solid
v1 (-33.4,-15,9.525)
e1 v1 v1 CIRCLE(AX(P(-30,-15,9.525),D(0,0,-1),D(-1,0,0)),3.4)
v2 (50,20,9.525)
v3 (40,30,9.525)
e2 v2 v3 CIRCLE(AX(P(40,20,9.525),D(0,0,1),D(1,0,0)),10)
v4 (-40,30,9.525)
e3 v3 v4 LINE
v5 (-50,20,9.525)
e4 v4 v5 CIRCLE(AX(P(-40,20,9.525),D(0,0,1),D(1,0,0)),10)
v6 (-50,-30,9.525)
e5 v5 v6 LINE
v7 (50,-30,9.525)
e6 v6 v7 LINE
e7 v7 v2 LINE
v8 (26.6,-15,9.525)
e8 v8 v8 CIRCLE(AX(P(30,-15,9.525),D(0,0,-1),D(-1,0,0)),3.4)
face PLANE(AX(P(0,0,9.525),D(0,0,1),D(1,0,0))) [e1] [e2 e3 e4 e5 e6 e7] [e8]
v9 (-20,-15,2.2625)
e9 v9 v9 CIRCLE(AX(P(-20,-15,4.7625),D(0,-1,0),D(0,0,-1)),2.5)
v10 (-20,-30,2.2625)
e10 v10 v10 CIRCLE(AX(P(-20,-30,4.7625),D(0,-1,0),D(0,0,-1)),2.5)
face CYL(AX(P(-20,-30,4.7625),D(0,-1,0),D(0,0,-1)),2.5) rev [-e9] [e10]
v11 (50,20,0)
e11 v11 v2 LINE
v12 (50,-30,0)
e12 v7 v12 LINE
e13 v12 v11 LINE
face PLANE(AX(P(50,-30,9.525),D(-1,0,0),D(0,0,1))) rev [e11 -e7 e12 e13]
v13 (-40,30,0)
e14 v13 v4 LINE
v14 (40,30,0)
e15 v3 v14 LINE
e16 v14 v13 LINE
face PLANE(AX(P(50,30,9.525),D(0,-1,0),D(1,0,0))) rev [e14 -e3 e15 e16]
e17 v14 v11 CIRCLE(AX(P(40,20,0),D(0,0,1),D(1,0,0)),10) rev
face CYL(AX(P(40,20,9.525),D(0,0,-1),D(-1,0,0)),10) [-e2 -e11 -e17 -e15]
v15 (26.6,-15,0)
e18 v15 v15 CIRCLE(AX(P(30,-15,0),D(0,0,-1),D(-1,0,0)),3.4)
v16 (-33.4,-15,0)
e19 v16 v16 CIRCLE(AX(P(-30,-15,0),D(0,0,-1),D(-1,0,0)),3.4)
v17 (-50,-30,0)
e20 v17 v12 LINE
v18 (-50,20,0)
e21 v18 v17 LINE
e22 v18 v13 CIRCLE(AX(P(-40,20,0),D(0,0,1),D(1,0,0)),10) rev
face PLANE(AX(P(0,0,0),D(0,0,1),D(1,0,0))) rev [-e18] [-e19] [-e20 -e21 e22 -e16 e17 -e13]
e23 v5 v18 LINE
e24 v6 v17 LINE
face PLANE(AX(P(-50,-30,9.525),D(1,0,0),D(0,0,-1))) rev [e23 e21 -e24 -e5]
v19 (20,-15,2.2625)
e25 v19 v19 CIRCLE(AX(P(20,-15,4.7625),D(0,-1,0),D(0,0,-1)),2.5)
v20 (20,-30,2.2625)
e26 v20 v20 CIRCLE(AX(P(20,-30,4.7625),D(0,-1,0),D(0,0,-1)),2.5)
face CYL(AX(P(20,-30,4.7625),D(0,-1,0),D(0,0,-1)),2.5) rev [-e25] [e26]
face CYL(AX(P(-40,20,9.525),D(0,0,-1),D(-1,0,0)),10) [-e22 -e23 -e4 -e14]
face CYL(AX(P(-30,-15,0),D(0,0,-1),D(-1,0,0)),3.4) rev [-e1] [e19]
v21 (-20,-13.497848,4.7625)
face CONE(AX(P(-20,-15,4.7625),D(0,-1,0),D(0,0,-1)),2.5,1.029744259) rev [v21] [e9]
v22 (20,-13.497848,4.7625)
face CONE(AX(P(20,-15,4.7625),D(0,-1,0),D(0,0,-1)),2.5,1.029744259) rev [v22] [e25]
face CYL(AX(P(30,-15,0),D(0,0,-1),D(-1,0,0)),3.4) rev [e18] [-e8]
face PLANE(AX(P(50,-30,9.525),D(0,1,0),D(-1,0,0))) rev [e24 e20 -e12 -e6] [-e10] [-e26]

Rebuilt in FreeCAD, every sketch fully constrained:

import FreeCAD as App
import Part
import Sketcher
Q = App.Units.Quantity


def edges_at(feature, points):
    """Names of the edges that pass closest to the given points."""
    edges = feature.Shape.Edges
    near = lambda p: min(range(len(edges)), key=lambda i: edges[i].distToShape(Part.Vertex(*p))[0])
    return sorted({f"Edge{near(p) + 1}" for p in points})


def add_polygon(sketch, points):
    """Adds a closed chain of lines whose ends are joined by coincident constraints."""
    first, n = sketch.GeometryCount, len(points)
    for a, b in zip(points, points[1:] + points[:1]):
        sketch.addGeometry(Part.LineSegment(App.Vector(*a, 0), App.Vector(*b, 0)), False)
    for i in range(n):
        sketch.addConstraint(Sketcher.Constraint("Coincident", first + i, 2, first + (i + 1) % n, 1))

doc = App.newDocument("Part")
body = doc.addObject("PartDesign::Body", "Body")

# Sketch on XY plane
sketch1 = body.newObject("Sketcher::SketchObject", "Sketch")
sketch1.AttachmentSupport = (doc.getObject("XY_Plane"), [""])
sketch1.MapMode = "FlatFace"
add_polygon(sketch1, [(-50, 30), (-50, -30), (50, -30), (50, 30)])  # lines 0-3
sketch1.addConstraint([
    Sketcher.Constraint("Vertical", 0),
    Sketcher.Constraint("Horizontal", 1),
    Sketcher.Constraint("Vertical", 2),
    Sketcher.Constraint("Horizontal", 3),
    Sketcher.Constraint("Symmetric", 0, 2, 2, 2, -1, 1),
    Sketcher.Constraint("DistanceX", 1, 1, 1, 2, Q("100 mm")),
    Sketcher.Constraint("DistanceY", 0, 2, 0, 1, Q("60 mm")),
])
pad1 = body.newObject("PartDesign::Pad", "Pad")
pad1.Profile = sketch1
pad1.Length = 9.525
doc.recompute()

fillet = body.newObject("PartDesign::Fillet", "Fillet")
fillet.Base = (pad1, edges_at(pad1, [(-50, 30, 4.763), (50, 30, 4.763)]))
fillet.Radius = 10

# Sketch on XZ plane
sketch2 = body.newObject("Sketcher::SketchObject", "Sketch001")
sketch2.AttachmentSupport = (doc.getObject("XZ_Plane"), [""])
sketch2.MapMode = "FlatFace"
sketch2.AttachmentOffset = App.Placement(App.Vector(0, 0, 30), App.Rotation())
sketch2.addGeometry([
    Part.Circle(App.Vector(-20, 4.7625, 0), App.Vector(0, 0, 1), 2.5),
    Part.Circle(App.Vector(20, 4.7625, 0), App.Vector(0, 0, 1), 2.5),
], False)
sketch2.addConstraint([
    Sketcher.Constraint("Equal", 0, 1),
    Sketcher.Constraint("Symmetric", 0, 3, 1, 3, -2),
    Sketcher.Constraint("Diameter", 0, Q("5 mm")),
    Sketcher.Constraint("DistanceX", 0, 3, -1, 1, Q("20 mm")),
    Sketcher.Constraint("DistanceY", -1, 1, 0, 3, Q("4.7625 mm")),
])
doc.recompute()
hole = body.newObject("PartDesign::Hole", "Hole")
hole.Profile = sketch2
hole.ThreadType = "None"
hole.Diameter = 5
hole.DepthType = "Dimension"
hole.Depth = 15
hole.DrillPoint = "Angled"
hole.DrillPointAngle = 118

# Sketch on XY plane
sketch3 = body.newObject("Sketcher::SketchObject", "Sketch002")
sketch3.AttachmentSupport = (doc.getObject("XY_Plane"), [""])
sketch3.MapMode = "FlatFace"
sketch3.AttachmentOffset = App.Placement(App.Vector(0, 0, 9.525), App.Rotation())
sketch3.addGeometry([
    Part.Circle(App.Vector(30, -15, 0), App.Vector(0, 0, 1), 3),
    Part.Circle(App.Vector(-30, -15, 0), App.Vector(0, 0, 1), 3),
], False)
sketch3.addConstraint([
    Sketcher.Constraint("Equal", 0, 1),
    Sketcher.Constraint("Symmetric", 0, 3, 1, 3, -2),
    Sketcher.Constraint("Diameter", 0, Q("6 mm")),
    Sketcher.Constraint("DistanceX", -1, 1, 0, 3, Q("30 mm")),
    Sketcher.Constraint("DistanceY", 0, 3, -1, 1, Q("15 mm")),
])
pocket1 = body.newObject("PartDesign::Pocket", "Pocket")
pocket1.Profile = sketch3
pocket1.Type = "ThroughAll"

# Sketch on XY plane
sketch4 = body.newObject("Sketcher::SketchObject", "Sketch003")
sketch4.AttachmentSupport = (doc.getObject("XY_Plane"), [""])
sketch4.MapMode = "FlatFace"
sketch4.addGeometry([
    Part.Circle(App.Vector(30, -15, 0), App.Vector(0, 0, 1), 3.4),
    Part.Circle(App.Vector(-30, -15, 0), App.Vector(0, 0, 1), 3.4),
], False)
sketch4.addConstraint([
    Sketcher.Constraint("Equal", 0, 1),
    Sketcher.Constraint("Symmetric", 0, 3, 1, 3, -2),
    Sketcher.Constraint("Diameter", 0, Q("6.8 mm")),
    Sketcher.Constraint("DistanceX", -1, 1, 0, 3, Q("30 mm")),
    Sketcher.Constraint("DistanceY", 0, 3, -1, 1, Q("15 mm")),
])
doc.recompute()
hole2 = body.newObject("PartDesign::Hole", "Hole001")
hole2.Profile = sketch4
hole2.ThreadType = "None"
hole2.Diameter = 6.8
hole2.DepthType = "ThroughAll"
hole2.Reversed = True

doc.recompute()
